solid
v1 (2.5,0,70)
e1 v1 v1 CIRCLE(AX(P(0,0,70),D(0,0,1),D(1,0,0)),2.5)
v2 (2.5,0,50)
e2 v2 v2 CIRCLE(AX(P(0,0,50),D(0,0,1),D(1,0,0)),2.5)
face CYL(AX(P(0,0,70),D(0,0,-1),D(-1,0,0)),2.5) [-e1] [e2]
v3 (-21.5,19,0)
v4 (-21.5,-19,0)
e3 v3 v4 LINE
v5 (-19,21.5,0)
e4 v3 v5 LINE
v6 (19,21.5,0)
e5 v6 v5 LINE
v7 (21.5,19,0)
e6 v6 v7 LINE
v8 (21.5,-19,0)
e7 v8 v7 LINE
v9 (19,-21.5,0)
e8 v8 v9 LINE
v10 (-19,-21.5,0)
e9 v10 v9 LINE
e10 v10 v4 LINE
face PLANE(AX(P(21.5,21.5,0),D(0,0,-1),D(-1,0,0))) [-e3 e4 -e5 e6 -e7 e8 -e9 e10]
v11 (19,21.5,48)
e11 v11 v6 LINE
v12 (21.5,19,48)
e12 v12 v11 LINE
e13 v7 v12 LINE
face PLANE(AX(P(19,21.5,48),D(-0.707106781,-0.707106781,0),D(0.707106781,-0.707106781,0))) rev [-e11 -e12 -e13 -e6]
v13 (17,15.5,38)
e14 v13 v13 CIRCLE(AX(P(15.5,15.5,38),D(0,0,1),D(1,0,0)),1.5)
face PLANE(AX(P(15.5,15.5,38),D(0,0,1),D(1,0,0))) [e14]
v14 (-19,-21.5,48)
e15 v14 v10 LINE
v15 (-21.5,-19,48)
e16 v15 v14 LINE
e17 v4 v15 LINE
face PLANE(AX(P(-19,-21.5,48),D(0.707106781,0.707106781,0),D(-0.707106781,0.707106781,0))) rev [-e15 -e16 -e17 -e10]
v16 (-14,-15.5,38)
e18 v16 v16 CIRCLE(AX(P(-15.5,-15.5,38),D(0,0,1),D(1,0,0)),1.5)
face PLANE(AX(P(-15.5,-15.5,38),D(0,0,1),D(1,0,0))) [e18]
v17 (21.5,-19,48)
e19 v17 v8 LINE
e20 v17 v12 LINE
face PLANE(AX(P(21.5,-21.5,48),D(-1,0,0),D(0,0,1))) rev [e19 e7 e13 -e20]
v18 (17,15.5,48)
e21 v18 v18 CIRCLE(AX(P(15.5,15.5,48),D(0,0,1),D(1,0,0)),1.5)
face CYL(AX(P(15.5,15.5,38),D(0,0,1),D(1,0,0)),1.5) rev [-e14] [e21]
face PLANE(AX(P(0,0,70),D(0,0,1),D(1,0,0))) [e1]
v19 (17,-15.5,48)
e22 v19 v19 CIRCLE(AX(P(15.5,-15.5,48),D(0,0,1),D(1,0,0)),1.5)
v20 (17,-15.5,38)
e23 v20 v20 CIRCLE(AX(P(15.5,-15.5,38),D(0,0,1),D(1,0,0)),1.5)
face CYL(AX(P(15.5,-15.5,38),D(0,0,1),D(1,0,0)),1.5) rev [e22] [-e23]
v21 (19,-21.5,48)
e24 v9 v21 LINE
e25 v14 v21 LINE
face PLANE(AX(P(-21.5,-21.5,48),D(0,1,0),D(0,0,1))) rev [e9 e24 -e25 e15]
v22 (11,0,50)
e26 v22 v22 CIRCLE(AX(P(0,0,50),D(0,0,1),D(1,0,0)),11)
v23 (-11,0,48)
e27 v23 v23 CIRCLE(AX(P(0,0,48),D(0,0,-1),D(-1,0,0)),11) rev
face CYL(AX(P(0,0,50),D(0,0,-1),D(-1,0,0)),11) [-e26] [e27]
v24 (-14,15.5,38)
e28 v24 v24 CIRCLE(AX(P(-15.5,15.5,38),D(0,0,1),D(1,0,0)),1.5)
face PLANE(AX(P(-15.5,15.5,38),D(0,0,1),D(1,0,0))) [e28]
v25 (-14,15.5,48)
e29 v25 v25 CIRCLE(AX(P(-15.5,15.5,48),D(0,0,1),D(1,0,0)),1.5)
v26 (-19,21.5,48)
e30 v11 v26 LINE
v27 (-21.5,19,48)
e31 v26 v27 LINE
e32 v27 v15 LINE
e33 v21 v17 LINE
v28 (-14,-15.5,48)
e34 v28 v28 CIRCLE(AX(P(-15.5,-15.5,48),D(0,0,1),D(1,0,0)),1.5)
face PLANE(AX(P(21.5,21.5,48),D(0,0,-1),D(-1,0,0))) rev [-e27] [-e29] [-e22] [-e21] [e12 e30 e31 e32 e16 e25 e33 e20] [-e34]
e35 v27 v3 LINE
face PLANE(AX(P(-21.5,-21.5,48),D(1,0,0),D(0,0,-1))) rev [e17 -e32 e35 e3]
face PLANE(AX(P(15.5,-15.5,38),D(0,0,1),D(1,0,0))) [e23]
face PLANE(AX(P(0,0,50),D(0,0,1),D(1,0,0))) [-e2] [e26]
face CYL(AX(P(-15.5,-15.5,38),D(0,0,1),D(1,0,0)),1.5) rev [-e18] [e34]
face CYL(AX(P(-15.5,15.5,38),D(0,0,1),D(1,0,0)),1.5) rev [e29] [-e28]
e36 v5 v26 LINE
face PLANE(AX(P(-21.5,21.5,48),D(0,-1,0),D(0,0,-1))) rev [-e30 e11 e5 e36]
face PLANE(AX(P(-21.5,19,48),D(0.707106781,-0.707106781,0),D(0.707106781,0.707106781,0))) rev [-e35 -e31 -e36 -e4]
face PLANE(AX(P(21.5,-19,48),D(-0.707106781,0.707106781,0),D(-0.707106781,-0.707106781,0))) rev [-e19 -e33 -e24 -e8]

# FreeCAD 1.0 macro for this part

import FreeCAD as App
import Part
import Sketcher

V = App.Vector
Q = App.Units.Quantity


def edges_at(feature, points):
    """Names of the edges that pass closest to the given points."""
    edges = feature.Shape.Edges
    near = lambda p: min(range(len(edges)), key=lambda i: edges[i].distToShape(Part.Vertex(*p))[0])
    return sorted({f"Edge{near(p) + 1}" for p in points})

doc = App.newDocument("Part")
body = doc.addObject("PartDesign::Body", "Body")

sketch1 = body.newObject("Sketcher::SketchObject", "Sketch")
sketch1.AttachmentSupport = (doc.getObject("XY_Plane"), [""])
sketch1.MapMode = "FlatFace"
sketch1.addGeometry([
    Part.LineSegment(V(-21.5, 21.5, 0), V(-21.5, -21.5, 0)),
    Part.LineSegment(V(-21.5, -21.5, 0), V(21.5, -21.5, 0)),
    Part.LineSegment(V(21.5, -21.5, 0), V(21.5, 21.5, 0)),
    Part.LineSegment(V(21.5, 21.5, 0), V(-21.5, 21.5, 0)),
], False)
sketch1.addConstraint([
    Sketcher.Constraint("Coincident", 0, 2, 1, 1),
    Sketcher.Constraint("Coincident", 1, 2, 2, 1),
    Sketcher.Constraint("Coincident", 2, 2, 3, 1),
    Sketcher.Constraint("Coincident", 3, 2, 0, 1),
    Sketcher.Constraint("Vertical", 0),
    Sketcher.Constraint("Horizontal", 1),
    Sketcher.Constraint("Vertical", 2),
    Sketcher.Constraint("Horizontal", 3),
    Sketcher.Constraint("Symmetric", 0, 2, 2, 2, -1, 1),
    Sketcher.Constraint("Equal", 3, 0),
    Sketcher.Constraint("DistanceX", 1, 1, 1, 2, Q("43 mm")),
])
pad1 = body.newObject("PartDesign::Pad", "Pad")
pad1.Profile = sketch1
pad1.Length = 48
doc.recompute()

chamfer = body.newObject("PartDesign::Chamfer", "Chamfer")
chamfer.Base = (pad1, edges_at(pad1, [
    (21.5, -21.5, 24),
    (-21.5, -21.5, 24),
    (-21.5, 21.5, 24),
    (21.5, 21.5, 24),
]))
chamfer.Size = 2.5

sketch2 = body.newObject("Sketcher::SketchObject", "Sketch001")
sketch2.AttachmentSupport = (doc.getObject("XY_Plane"), [""])
sketch2.MapMode = "FlatFace"
sketch2.AttachmentOffset = App.Placement(V(0, 0, 48), App.Rotation())
sketch2.addGeometry(Part.Circle(V(0, 0, 0), V(0, 0, 1), 11), False)
sketch2.addConstraint([
    Sketcher.Constraint("Coincident", 0, 3, -1, 1),
    Sketcher.Constraint("Diameter", 0, Q("22 mm")),
])
pad2 = body.newObject("PartDesign::Pad", "Pad001")
pad2.Profile = sketch2
pad2.Length = 2

sketch3 = body.newObject("Sketcher::SketchObject", "Sketch002")
sketch3.AttachmentSupport = (doc.getObject("XY_Plane"), [""])
sketch3.MapMode = "FlatFace"
sketch3.AttachmentOffset = App.Placement(V(0, 0, 50), App.Rotation())
sketch3.addGeometry(Part.Circle(V(0, 0, 0), V(0, 0, 1), 2.5), False)
sketch3.addConstraint([
    Sketcher.Constraint("Coincident", 0, 3, -1, 1),
    Sketcher.Constraint("Diameter", 0, Q("5 mm")),
])
pad3 = body.newObject("PartDesign::Pad", "Pad002")
pad3.Profile = sketch3
pad3.Length = 20

sketch4 = body.newObject("Sketcher::SketchObject", "Sketch003")
sketch4.AttachmentSupport = (doc.getObject("XY_Plane"), [""])
sketch4.MapMode = "FlatFace"
sketch4.AttachmentOffset = App.Placement(V(0, 0, 48), App.Rotation())
sketch4.addGeometry([
    Part.Circle(V(-15.5, 15.5, 0), V(0, 0, 1), 1.5),
    Part.Circle(V(15.5, 15.5, 0), V(0, 0, 1), 1.5),
    Part.Circle(V(15.5, -15.5, 0), V(0, 0, 1), 1.5),
    Part.Circle(V(-15.5, -15.5, 0), V(0, 0, 1), 1.5),
], False)
sketch4.addConstraint([
    Sketcher.Constraint("Equal", 0, 1),
    Sketcher.Constraint("Equal", 1, 2),
    Sketcher.Constraint("Equal", 2, 3),
    Sketcher.Constraint("Symmetric", 0, 3, 2, 3, -1, 1),
    Sketcher.Constraint("Symmetric", 1, 3, 3, 3, -1, 1),
    Sketcher.Constraint("Symmetric", 0, 3, 1, 3, -2),
    Sketcher.Constraint("Diameter", 0, Q("3 mm")),
    Sketcher.Constraint("DistanceX", 0, 3, 1, 3, Q("31 mm")),
    Sketcher.Constraint("DistanceY", 2, 3, 1, 3, Q("31 mm")),
])
pocket1 = body.newObject("PartDesign::Pocket", "Pocket")
pocket1.Profile = sketch4
pocket1.Length = 10

doc.recompute()
